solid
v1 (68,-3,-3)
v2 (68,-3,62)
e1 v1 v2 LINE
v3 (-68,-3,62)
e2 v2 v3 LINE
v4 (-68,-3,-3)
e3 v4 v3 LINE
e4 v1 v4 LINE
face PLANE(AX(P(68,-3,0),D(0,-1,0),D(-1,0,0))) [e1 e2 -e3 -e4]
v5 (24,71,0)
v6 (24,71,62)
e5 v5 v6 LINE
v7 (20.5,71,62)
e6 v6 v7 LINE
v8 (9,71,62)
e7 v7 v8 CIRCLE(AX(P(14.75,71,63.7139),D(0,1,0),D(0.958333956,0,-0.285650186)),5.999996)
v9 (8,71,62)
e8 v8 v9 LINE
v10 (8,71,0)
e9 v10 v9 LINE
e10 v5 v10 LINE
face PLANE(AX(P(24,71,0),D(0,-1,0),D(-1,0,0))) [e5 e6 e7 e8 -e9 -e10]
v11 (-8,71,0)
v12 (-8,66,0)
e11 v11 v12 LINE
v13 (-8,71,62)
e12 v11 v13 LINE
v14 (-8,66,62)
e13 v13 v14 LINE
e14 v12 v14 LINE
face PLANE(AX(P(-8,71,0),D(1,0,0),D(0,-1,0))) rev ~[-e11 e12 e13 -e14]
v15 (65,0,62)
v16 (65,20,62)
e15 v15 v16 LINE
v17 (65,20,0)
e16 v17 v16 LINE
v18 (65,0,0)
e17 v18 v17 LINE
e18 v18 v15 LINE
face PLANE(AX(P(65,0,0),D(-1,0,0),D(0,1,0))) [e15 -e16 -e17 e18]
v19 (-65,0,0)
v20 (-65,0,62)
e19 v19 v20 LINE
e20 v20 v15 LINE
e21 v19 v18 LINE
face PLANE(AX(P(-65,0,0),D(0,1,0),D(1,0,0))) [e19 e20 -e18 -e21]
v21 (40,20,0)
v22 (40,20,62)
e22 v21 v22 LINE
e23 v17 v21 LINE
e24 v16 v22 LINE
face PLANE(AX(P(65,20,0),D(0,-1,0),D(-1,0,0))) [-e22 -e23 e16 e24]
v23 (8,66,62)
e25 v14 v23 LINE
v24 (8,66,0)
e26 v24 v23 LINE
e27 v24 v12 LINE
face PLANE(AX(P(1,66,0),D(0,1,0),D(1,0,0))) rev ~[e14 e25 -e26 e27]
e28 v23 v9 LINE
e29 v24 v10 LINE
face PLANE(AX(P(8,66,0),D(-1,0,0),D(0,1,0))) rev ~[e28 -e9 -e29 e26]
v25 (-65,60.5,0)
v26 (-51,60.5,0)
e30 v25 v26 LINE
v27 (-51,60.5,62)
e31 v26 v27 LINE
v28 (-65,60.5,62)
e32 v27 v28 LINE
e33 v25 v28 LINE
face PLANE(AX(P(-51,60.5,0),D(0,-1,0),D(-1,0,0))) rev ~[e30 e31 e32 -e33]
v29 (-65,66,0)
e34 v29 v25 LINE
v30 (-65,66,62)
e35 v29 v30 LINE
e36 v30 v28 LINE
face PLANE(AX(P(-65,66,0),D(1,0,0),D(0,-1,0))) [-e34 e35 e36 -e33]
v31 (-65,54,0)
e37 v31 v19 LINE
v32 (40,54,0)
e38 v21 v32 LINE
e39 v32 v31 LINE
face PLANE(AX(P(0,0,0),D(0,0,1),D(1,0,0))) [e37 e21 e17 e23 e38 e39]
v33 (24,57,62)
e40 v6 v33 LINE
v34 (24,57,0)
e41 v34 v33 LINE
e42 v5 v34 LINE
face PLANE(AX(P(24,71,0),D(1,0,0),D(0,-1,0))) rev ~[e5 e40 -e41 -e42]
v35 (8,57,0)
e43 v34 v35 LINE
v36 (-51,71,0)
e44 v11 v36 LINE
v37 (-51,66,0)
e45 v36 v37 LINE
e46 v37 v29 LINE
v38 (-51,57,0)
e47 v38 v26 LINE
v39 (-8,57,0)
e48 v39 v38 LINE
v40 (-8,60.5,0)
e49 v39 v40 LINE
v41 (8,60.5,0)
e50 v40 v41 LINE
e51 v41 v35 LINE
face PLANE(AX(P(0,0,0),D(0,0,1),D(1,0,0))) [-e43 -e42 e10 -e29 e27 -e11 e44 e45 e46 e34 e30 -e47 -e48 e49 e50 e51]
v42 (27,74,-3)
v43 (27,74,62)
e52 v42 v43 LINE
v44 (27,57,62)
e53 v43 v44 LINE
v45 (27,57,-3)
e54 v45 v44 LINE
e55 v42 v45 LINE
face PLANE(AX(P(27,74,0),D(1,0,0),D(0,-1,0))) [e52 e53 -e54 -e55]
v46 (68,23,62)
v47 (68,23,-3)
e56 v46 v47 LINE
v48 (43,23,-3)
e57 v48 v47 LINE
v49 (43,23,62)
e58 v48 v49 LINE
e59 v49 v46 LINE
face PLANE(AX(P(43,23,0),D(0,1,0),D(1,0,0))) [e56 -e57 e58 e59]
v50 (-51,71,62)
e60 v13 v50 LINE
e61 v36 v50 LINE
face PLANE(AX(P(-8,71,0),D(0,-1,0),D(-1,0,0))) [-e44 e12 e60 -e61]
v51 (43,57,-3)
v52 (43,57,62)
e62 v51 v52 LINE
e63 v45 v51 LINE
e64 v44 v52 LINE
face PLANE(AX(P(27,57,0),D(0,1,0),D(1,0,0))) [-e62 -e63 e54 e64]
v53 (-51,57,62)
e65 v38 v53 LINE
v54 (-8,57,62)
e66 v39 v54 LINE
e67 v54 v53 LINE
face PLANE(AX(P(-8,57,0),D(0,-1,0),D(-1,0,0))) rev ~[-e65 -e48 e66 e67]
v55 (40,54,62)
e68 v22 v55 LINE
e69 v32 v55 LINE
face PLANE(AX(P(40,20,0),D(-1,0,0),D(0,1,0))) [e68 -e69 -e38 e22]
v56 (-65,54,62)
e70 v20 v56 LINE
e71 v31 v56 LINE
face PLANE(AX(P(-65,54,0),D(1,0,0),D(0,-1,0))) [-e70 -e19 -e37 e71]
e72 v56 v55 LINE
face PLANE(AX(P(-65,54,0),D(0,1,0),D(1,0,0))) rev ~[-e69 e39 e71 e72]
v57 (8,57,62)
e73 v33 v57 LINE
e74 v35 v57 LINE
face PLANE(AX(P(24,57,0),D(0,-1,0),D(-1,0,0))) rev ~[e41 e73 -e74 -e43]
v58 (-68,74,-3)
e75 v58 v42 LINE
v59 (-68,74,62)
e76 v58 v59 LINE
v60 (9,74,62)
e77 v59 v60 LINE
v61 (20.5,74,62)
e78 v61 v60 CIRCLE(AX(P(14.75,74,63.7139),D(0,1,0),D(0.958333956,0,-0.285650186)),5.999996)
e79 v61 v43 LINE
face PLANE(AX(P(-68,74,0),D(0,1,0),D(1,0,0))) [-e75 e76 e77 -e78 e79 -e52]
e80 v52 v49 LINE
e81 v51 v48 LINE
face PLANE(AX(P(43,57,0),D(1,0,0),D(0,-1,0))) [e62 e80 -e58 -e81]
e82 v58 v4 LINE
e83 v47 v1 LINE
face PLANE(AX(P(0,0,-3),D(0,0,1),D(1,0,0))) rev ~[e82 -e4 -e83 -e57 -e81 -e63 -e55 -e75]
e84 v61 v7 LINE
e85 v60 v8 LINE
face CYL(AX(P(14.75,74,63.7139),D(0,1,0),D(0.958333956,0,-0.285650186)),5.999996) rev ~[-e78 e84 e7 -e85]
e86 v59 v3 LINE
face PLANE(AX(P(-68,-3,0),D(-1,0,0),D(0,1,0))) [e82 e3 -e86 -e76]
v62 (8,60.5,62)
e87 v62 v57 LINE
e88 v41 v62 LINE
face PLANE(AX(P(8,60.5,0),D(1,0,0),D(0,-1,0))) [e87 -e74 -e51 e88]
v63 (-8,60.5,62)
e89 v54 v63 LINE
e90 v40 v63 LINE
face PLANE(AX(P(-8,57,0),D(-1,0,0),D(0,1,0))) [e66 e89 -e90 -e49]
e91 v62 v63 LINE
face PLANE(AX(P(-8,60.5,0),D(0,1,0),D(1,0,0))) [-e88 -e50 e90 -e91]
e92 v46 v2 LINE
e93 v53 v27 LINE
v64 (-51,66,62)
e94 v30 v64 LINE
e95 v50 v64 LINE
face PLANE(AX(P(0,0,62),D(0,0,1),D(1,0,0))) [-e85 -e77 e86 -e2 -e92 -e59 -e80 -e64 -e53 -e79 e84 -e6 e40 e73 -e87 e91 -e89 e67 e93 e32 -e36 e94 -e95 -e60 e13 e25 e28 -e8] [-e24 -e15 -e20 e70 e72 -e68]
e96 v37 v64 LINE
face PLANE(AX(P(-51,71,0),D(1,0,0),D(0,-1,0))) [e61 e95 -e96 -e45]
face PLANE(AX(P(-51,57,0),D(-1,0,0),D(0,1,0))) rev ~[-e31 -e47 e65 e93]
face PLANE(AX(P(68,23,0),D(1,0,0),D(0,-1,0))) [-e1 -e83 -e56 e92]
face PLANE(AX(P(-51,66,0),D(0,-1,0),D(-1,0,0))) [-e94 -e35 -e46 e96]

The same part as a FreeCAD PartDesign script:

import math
import FreeCAD as App
import Part
import Sketcher


def add_polygon(sketch, points):
    """Adds a closed chain of lines whose ends are joined by coincident constraints."""
    first, n = sketch.GeometryCount, len(points)
    for a, b in zip(points, points[1:] + points[:1]):
        sketch.addGeometry(Part.LineSegment(App.Vector(*a, 0), App.Vector(*b, 0)), False)
    for i in range(n):
        sketch.addConstraint(Sketcher.Constraint("Coincident", first + i, 2, first + (i + 1) % n, 1))

doc = App.newDocument("Part")
body = doc.addObject("PartDesign::Body", "Body")

sketch1 = body.newObject("Sketcher::SketchObject", "Sketch")
sketch1.AttachmentSupport = (doc.getObject("XY_Plane"), [""])
sketch1.MapMode = "FlatFace"
add_polygon(sketch1, [(68, 23), (43, 23), (43, 57), (27, 57), (27, 74), (-68, 74), (-68, -3), (68, -3)])
sketch1.addConstraint([
    Sketcher.Constraint("Horizontal", 0),
    Sketcher.Constraint("Vertical", 1),
    Sketcher.Constraint("Horizontal", 2),
    Sketcher.Constraint("Vertical", 3),
    Sketcher.Constraint("Horizontal", 4),
    Sketcher.Constraint("Vertical", 5),
    Sketcher.Constraint("Horizontal", 6),
    Sketcher.Constraint("Vertical", 7),
    Sketcher.Constraint("DistanceX", 0, 2, 0, 1, 25.0),
    Sketcher.Constraint("DistanceX", 2, 2, 2, 1, 16.0),
    Sketcher.Constraint("DistanceX", -1, 1, 0, 2, 43.0),
    Sketcher.Constraint("DistanceY", 5, 2, -1, 1, 3.0),
    Sketcher.Constraint("DistanceY", 0, 2, 3, 2, 51.0),
    Sketcher.Constraint("DistanceX", 4, 2, 4, 1, 95.0),
    Sketcher.Constraint("DistanceY", 1, 1, 1, 2, 34.0),
    Sketcher.Constraint("DistanceY", 5, 2, 5, 1, 77.0),
])
pad1 = body.newObject("PartDesign::Pad", "Pad")
pad1.Profile = sketch1
pad1.Length = 3
pad1.Reversed = True

sketch2 = body.newObject("Sketcher::SketchObject", "Sketch001")
sketch2.AttachmentSupport = (doc.getObject("XY_Plane"), [""])
sketch2.MapMode = "FlatFace"
add_polygon(sketch2, [(68, 23), (43, 23), (43, 57), (27, 57), (27, 74), (-68, 74), (-68, -3), (68, -3)])
add_polygon(sketch2, [(-8, 57), (-51, 57), (-51, 60.5), (-65, 60.5), (-65, 66), (-51, 66), (-51, 71), (-8, 71), (-8, 66), (8, 66), (8, 71), (24, 71), (24, 57), (8, 57), (8, 60.5), (-8, 60.5)])
add_polygon(sketch2, [(-65, 54), (40, 54), (40, 20), (65, 20), (65, 0), (-65, 0)])
sketch2.addConstraint([
    Sketcher.Constraint("Horizontal", 0),
    Sketcher.Constraint("Vertical", 1),
    Sketcher.Constraint("Horizontal", 2),
    Sketcher.Constraint("Vertical", 3),
    Sketcher.Constraint("Horizontal", 4),
    Sketcher.Constraint("Vertical", 5),
    Sketcher.Constraint("Horizontal", 6),
    Sketcher.Constraint("Vertical", 7),
    Sketcher.Constraint("Horizontal", 8),
    Sketcher.Constraint("Vertical", 9),
    Sketcher.Constraint("Horizontal", 10),
    Sketcher.Constraint("Vertical", 11),
    Sketcher.Constraint("Horizontal", 12),
    Sketcher.Constraint("Vertical", 13),
    Sketcher.Constraint("Horizontal", 14),
    Sketcher.Constraint("Vertical", 15),
    Sketcher.Constraint("Horizontal", 16),
    Sketcher.Constraint("Vertical", 17),
    Sketcher.Constraint("Horizontal", 18),
    Sketcher.Constraint("Vertical", 19),
    Sketcher.Constraint("Horizontal", 20),
    Sketcher.Constraint("Vertical", 21),
    Sketcher.Constraint("Horizontal", 22),
    Sketcher.Constraint("Vertical", 23),
    Sketcher.Constraint("Horizontal", 24),
    Sketcher.Constraint("Vertical", 25),
    Sketcher.Constraint("Horizontal", 26),
    Sketcher.Constraint("Vertical", 27),
    Sketcher.Constraint("Horizontal", 28),
    Sketcher.Constraint("Vertical", 29),
    Sketcher.Constraint("Symmetric", 27, 2, 28, 2, -1, 1),
    Sketcher.Constraint("Symmetric", 14, 2, 17, 2, -2),
    Sketcher.Constraint("Symmetric", 20, 2, 23, 2, -2),
    Sketcher.Constraint("Horizontal", 2, 2, 8, 2),
    Sketcher.Constraint("Horizontal", 12, 2, 15, 2),
    Sketcher.Constraint("Horizontal", 10, 2, 21, 2),
    Sketcher.Constraint("Vertical", 9, 2, 12, 2),
    Sketcher.Constraint("Vertical", 17, 2, 20, 2),
    Sketcher.Constraint("Vertical", 11, 2, 28, 2),
    Sketcher.Constraint("Equal", 2, 16),
    Sketcher.Constraint("Equal", 16, 18),
    Sketcher.Constraint("Equal", 0, 26),
    Sketcher.Constraint("Equal", 12, 19),
    Sketcher.Constraint("Equal", 1, 25),
    Sketcher.Constraint("DistanceX", 0, 2, 0, 1, 25.0),
    Sketcher.Constraint("DistanceX", 2, 2, 2, 1, 16.0),
    Sketcher.Constraint("DistanceX", 8, 2, 8, 1, 43.0),
    Sketcher.Constraint("DistanceX", 10, 2, 10, 1, 14.0),
    Sketcher.Constraint("DistanceY", 13, 1, 13, 2, 5.0),
    Sketcher.Constraint("DistanceY", 27, 2, 27, 1, 20.0),
    Sketcher.Constraint("DistanceY", 29, 1, 29, 2, 54.0),
    Sketcher.Constraint("DistanceY", 11, 1, 11, 2, 5.5),
    Sketcher.Constraint("DistanceX", -1, 1, 0, 2, 43.0),
    Sketcher.Constraint("DistanceY", 5, 2, -1, 1, 3.0),
    Sketcher.Constraint("DistanceY", -1, 1, 13, 2, 71.0),
    Sketcher.Constraint("DistanceY", 0, 2, 3, 2, 51.0),
    Sketcher.Constraint("DistanceX", 4, 2, 10, 2, 3.0),
])
pad2 = body.newObject("PartDesign::Pad", "Pad001")
pad2.Profile = sketch2
pad2.Length = 62

sketch3 = body.newObject("Sketcher::SketchObject", "Sketch002")
sketch3.AttachmentSupport = (doc.getObject("XZ_Plane"), [""])
sketch3.MapMode = "FlatFace"
sketch3.AttachmentOffset = App.Placement(App.Vector(0, 0, -74), App.Rotation())
sketch3.addGeometry([
    Part.LineSegment(App.Vector(9, 62, 0), App.Vector(20, 62, 0)),
    Part.ArcOfCircle(Part.Circle(App.Vector(15, 64, 0), App.Vector(0, 0, 1), 6), math.radians(-163), math.radians(-17)),
], False)
sketch3.addConstraint([
    Sketcher.Constraint("Coincident", 0, 1, 1, 1),
    Sketcher.Constraint("Coincident", 1, 2, 0, 2),
    Sketcher.Constraint("Horizontal", 0),
    Sketcher.Constraint("Radius", 1, 6.0),
    Sketcher.Constraint("DistanceX", 0, 1, 0, 2, 11.5),
    Sketcher.Constraint("DistanceX", -1, 1, 0, 1, 9.0),
    Sketcher.Constraint("DistanceY", -1, 1, 0, 1, 62.0),
])
pocket1 = body.newObject("PartDesign::Pocket", "Pocket")
pocket1.Profile = sketch3
pocket1.Length = 3
pocket1.Reversed = True

doc.recompute()
